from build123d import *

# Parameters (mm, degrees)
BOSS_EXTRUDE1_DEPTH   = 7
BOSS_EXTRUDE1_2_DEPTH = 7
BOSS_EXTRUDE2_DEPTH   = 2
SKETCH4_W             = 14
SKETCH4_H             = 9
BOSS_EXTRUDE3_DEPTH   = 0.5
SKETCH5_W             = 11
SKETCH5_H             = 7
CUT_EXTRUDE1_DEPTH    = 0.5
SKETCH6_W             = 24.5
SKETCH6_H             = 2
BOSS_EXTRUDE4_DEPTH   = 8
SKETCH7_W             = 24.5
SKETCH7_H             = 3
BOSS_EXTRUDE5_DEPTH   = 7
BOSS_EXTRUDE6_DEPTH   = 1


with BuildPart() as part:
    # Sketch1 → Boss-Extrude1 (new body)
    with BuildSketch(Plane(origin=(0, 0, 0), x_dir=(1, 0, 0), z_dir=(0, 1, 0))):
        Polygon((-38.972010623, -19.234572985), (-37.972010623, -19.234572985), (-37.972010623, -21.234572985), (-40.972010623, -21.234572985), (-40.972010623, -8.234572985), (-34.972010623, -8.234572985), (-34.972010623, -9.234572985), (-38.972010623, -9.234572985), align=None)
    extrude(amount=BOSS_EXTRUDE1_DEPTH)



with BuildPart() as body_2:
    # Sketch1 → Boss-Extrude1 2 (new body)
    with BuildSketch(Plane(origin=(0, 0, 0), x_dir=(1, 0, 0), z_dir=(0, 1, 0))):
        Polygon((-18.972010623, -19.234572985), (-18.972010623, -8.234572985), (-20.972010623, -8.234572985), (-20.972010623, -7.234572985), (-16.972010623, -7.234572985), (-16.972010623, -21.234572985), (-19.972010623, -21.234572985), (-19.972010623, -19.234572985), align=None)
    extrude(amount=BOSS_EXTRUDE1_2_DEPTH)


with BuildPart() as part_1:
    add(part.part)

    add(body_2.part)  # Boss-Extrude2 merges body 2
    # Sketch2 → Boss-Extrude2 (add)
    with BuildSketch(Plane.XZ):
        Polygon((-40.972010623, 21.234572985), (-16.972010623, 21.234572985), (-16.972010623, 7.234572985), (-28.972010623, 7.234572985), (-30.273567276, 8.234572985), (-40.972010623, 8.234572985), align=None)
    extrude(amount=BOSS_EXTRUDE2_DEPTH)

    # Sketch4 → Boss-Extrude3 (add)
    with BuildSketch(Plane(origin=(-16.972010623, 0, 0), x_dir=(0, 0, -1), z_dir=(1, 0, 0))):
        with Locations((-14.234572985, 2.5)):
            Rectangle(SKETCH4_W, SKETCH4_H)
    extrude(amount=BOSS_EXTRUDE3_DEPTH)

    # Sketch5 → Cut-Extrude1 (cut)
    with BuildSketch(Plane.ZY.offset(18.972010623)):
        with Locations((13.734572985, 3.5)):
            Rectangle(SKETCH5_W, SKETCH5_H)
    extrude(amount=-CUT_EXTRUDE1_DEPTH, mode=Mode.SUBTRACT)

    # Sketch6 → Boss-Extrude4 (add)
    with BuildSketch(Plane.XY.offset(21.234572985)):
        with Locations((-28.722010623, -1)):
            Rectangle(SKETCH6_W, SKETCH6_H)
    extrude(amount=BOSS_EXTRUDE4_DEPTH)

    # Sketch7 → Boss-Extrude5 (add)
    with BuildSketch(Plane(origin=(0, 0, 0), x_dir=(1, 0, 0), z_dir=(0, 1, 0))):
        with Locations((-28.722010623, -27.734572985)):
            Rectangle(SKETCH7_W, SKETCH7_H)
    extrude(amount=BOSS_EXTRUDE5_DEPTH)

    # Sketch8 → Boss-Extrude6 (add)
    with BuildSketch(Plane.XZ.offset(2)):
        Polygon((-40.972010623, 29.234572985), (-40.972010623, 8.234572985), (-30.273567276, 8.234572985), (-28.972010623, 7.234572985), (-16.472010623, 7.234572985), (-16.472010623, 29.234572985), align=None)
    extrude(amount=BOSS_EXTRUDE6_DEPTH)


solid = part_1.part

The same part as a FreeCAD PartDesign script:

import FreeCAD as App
import Part
import Sketcher

V = App.Vector

doc = App.newDocument("Part")
body = doc.addObject("PartDesign::Body", "Body")

sketch1 = body.newObject("Sketcher::SketchObject", "Sketch")
sketch1.AttachmentSupport = (doc.getObject("XZ_Plane"), [""])
sketch1.MapMode = "FlatFace"
sketch1.addGeometry([
    Part.LineSegment(V(-38, 19.2, 0), V(-39, 19.2, 0)),
    Part.LineSegment(V(-39, 19.2, 0), V(-39, 9.2, 0)),
    Part.LineSegment(V(-39, 9.2, 0), V(-35, 9.2, 0)),
    Part.LineSegment(V(-35, 9.2, 0), V(-35, 8.2, 0)),
    Part.LineSegment(V(-35, 8.2, 0), V(-41, 8.2, 0)),
    Part.LineSegment(V(-41, 8.2, 0), V(-41, 21.2, 0)),
    Part.LineSegment(V(-41, 21.2, 0), V(-38, 21.2, 0)),
    Part.LineSegment(V(-38, 21.2, 0), V(-38, 19.2, 0)),
], False)
sketch1.addConstraint([
    Sketcher.Constraint("Coincident", 0, 2, 1, 1),
    Sketcher.Constraint("Coincident", 1, 2, 2, 1),
    Sketcher.Constraint("Coincident", 2, 2, 3, 1),
    Sketcher.Constraint("Coincident", 3, 2, 4, 1),
    Sketcher.Constraint("Coincident", 4, 2, 5, 1),
    Sketcher.Constraint("Coincident", 5, 2, 6, 1),
    Sketcher.Constraint("Coincident", 6, 2, 7, 1),
    Sketcher.Constraint("Coincident", 7, 2, 0, 1),
    Sketcher.Constraint("Horizontal", 0),
    Sketcher.Constraint("Vertical", 1),
    Sketcher.Constraint("Horizontal", 2),
    Sketcher.Constraint("Vertical", 3),
    Sketcher.Constraint("Horizontal", 4),
    Sketcher.Constraint("Vertical", 5),
    Sketcher.Constraint("Horizontal", 6),
    Sketcher.Constraint("Vertical", 7),
    Sketcher.Constraint("Equal", 0, 3),
    Sketcher.Constraint("DistanceX", 0, 2, 0, 1, 1.0),
    Sketcher.Constraint("DistanceX", 2, 1, 2, 2, 4.0),
    Sketcher.Constraint("DistanceX", 4, 2, 4, 1, 6.0),
    Sketcher.Constraint("DistanceY", 1, 2, 1, 1, 10.0),
    Sketcher.Constraint("DistanceY", 5, 1, 5, 2, 13.0),
    Sketcher.Constraint("DistanceX", 0, 2, -1, 1, 38.972011),
    Sketcher.Constraint("DistanceY", -1, 1, 0, 2, 19.234573),
])
pad1 = body.newObject("PartDesign::Pad", "Pad")
pad1.Profile = sketch1
pad1.Length = 7
pad1.Reversed = True
body2 = doc.addObject("PartDesign::Body", "Body001")

sketch2 = body2.newObject("Sketcher::SketchObject", "Sketch001")
sketch2.AttachmentSupport = (doc.getObject("XZ_Plane001"), [""])
sketch2.MapMode = "FlatFace"
sketch2.addGeometry([
    Part.LineSegment(V(-19, 8.2, 0), V(-19, 19.2, 0)),
    Part.LineSegment(V(-19, 19.2, 0), V(-20, 19.2, 0)),
    Part.LineSegment(V(-20, 19.2, 0), V(-20, 21.2, 0)),
    Part.LineSegment(V(-20, 21.2, 0), V(-17, 21.2, 0)),
    Part.LineSegment(V(-17, 21.2, 0), V(-17, 7.2, 0)),
    Part.LineSegment(V(-17, 7.2, 0), V(-21, 7.2, 0)),
    Part.LineSegment(V(-21, 7.2, 0), V(-21, 8.2, 0)),
    Part.LineSegment(V(-21, 8.2, 0), V(-19, 8.2, 0)),
], False)
sketch2.addConstraint([
    Sketcher.Constraint("Coincident", 0, 2, 1, 1),
    Sketcher.Constraint("Coincident", 1, 2, 2, 1),
    Sketcher.Constraint("Coincident", 2, 2, 3, 1),
    Sketcher.Constraint("Coincident", 3, 2, 4, 1),
    Sketcher.Constraint("Coincident", 4, 2, 5, 1),
    Sketcher.Constraint("Coincident", 5, 2, 6, 1),
    Sketcher.Constraint("Coincident", 6, 2, 7, 1),
    Sketcher.Constraint("Coincident", 7, 2, 0, 1),
    Sketcher.Constraint("Vertical", 0),
    Sketcher.Constraint("Horizontal", 1),
    Sketcher.Constraint("Vertical", 2),
    Sketcher.Constraint("Horizontal", 3),
    Sketcher.Constraint("Vertical", 4),
    Sketcher.Constraint("Horizontal", 5),
    Sketcher.Constraint("Vertical", 6),
    Sketcher.Constraint("Horizontal", 7),
    Sketcher.Constraint("Equal", 7, 2),
    Sketcher.Constraint("Equal", 1, 6),
    Sketcher.Constraint("DistanceX", 1, 2, 1, 1, 1.0),
    Sketcher.Constraint("DistanceX", 3, 1, 3, 2, 3.0),
    Sketcher.Constraint("DistanceX", 5, 2, 5, 1, 4.0),
    Sketcher.Constraint("DistanceY", 0, 1, 0, 2, 11.0),
    Sketcher.Constraint("DistanceX", 0, 2, -1, 1, 18.972011),
    Sketcher.Constraint("DistanceY", -1, 1, 0, 2, 19.234573),
])
pad2 = body2.newObject("PartDesign::Pad", "Pad001")
pad2.Profile = sketch2
pad2.Length = 7
pad2.Reversed = True
body.AllowCompound = True
doc.recompute()

boolean = body.newObject("PartDesign::Boolean", "Boolean")
boolean.Type = "Fuse"
boolean.addObjects([body2])

sketch3 = body.newObject("Sketcher::SketchObject", "Sketch002")
sketch3.AttachmentSupport = (doc.getObject("XZ_Plane"), [""])
sketch3.MapMode = "FlatFace"
sketch3.addGeometry([
    Part.LineSegment(V(-17, 21.2, 0), V(-41, 21.2, 0)),
    Part.LineSegment(V(-41, 21.2, 0), V(-41, 8.2, 0)),
    Part.LineSegment(V(-41, 8.2, 0), V(-30.3, 8.2, 0)),
    Part.LineSegment(V(-30.3, 8.2, 0), V(-29, 7.2, 0)),
    Part.LineSegment(V(-29, 7.2, 0), V(-17, 7.2, 0)),
    Part.LineSegment(V(-17, 7.2, 0), V(-17, 21.2, 0)),
], False)
sketch3.addConstraint([
    Sketcher.Constraint("Coincident", 0, 2, 1, 1),
    Sketcher.Constraint("Coincident", 1, 2, 2, 1),
    Sketcher.Constraint("Coincident", 2, 2, 3, 1),
    Sketcher.Constraint("Coincident", 3, 2, 4, 1),
    Sketcher.Constraint("Coincident", 4, 2, 5, 1),
    Sketcher.Constraint("Coincident", 5, 2, 0, 1),
    Sketcher.Constraint("Horizontal", 0),
    Sketcher.Constraint("Vertical", 1),
    Sketcher.Constraint("Horizontal", 2),
    Sketcher.Constraint("Horizontal", 4),
    Sketcher.Constraint("Vertical", 5),
    Sketcher.Constraint("DistanceX", 0, 2, 0, 1, 24.0),
    Sketcher.Constraint("DistanceX", 4, 1, 4, 2, 12.0),
    Sketcher.Constraint("DistanceY", 1, 2, 1, 1, 13.0),
    Sketcher.Constraint("DistanceY", 5, 1, 5, 2, 14.0),
    Sketcher.Constraint("DistanceX", 2, 1, 2, 2, 10.698443),
    Sketcher.Constraint("DistanceX", 0, 2, -1, 1, 40.972011),
    Sketcher.Constraint("DistanceY", -1, 1, 0, 2, 21.234573),
])
pad3 = body.newObject("PartDesign::Pad", "Pad002")
pad3.Profile = sketch3
pad3.Length = 2

sketch4 = body.newObject("Sketcher::SketchObject", "Sketch003")
sketch4.AttachmentSupport = (doc.getObject("YZ_Plane"), [""])
sketch4.MapMode = "FlatFace"
sketch4.AttachmentOffset = App.Placement(V(0, 0, -16.972011), App.Rotation())
sketch4.addGeometry([
    Part.LineSegment(V(7, 21, 0), V(-2, 21, 0)),
    Part.LineSegment(V(-2, 21, 0), V(-2, 7, 0)),
    Part.LineSegment(V(-2, 7, 0), V(7, 7, 0)),
    Part.LineSegment(V(7, 7, 0), V(7, 21, 0)),
], False)
sketch4.addConstraint([
    Sketcher.Constraint("Coincident", 0, 2, 1, 1),
    Sketcher.Constraint("Coincident", 1, 2, 2, 1),
    Sketcher.Constraint("Coincident", 2, 2, 3, 1),
    Sketcher.Constraint("Coincident", 3, 2, 0, 1),
    Sketcher.Constraint("Horizontal", 0),
    Sketcher.Constraint("Vertical", 1),
    Sketcher.Constraint("Horizontal", 2),
    Sketcher.Constraint("Vertical", 3),
    Sketcher.Constraint("DistanceX", 0, 2, 0, 1, 9.0),
    Sketcher.Constraint("DistanceY", 1, 2, 1, 1, 14.0),
    Sketcher.Constraint("DistanceX", 0, 2, -1, 1, 2.0),
    Sketcher.Constraint("DistanceY", -1, 1, 0, 2, 21.234573),
])
pad4 = body.newObject("PartDesign::Pad", "Pad003")
pad4.Profile = sketch4
pad4.Length = 0.5

sketch5 = body.newObject("Sketcher::SketchObject", "Sketch004")
sketch5.AttachmentSupport = (doc.getObject("YZ_Plane"), [""])
sketch5.MapMode = "FlatFace"
sketch5.AttachmentOffset = App.Placement(V(0, 0, -18.972011), App.Rotation())
sketch5.addGeometry([
    Part.LineSegment(V(7, 8, 0), V(0, 8, 0)),
    Part.LineSegment(V(0, 8, 0), V(0, 19, 0)),
    Part.LineSegment(V(0, 19, 0), V(7, 19, 0)),
    Part.LineSegment(V(7, 19, 0), V(7, 8, 0)),
], False)
sketch5.addConstraint([
    Sketcher.Constraint("Coincident", 0, 2, 1, 1),
    Sketcher.Constraint("Coincident", 1, 2, 2, 1),
    Sketcher.Constraint("Coincident", 2, 2, 3, 1),
    Sketcher.Constraint("Coincident", 3, 2, 0, 1),
    Sketcher.Constraint("Horizontal", 0),
    Sketcher.Constraint("Vertical", 1),
    Sketcher.Constraint("Horizontal", 2),
    Sketcher.Constraint("Vertical", 3),
    Sketcher.Constraint("PointOnObject", 0, 2, -2),
    Sketcher.Constraint("DistanceX", 0, 2, 0, 1, 7.0),
    Sketcher.Constraint("DistanceY", 1, 1, 1, 2, 11.0),
    Sketcher.Constraint("DistanceY", -1, 1, 0, 2, 8.234573),
])
pocket1 = body.newObject("PartDesign::Pocket", "Pocket")
pocket1.Profile = sketch5
pocket1.Length = 0.5
pocket1.Reversed = True

sketch6 = body.newObject("Sketcher::SketchObject", "Sketch005")
sketch6.AttachmentSupport = (doc.getObject("XY_Plane"), [""])
sketch6.MapMode = "FlatFace"
sketch6.AttachmentOffset = App.Placement(V(0, 0, 21.234573), App.Rotation())
sketch6.addGeometry([
    Part.LineSegment(V(-41, 0, 0), V(-41, -2, 0)),
    Part.LineSegment(V(-41, -2, 0), V(-16.5, -2, 0)),
    Part.LineSegment(V(-16.5, -2, 0), V(-16.5, 0, 0)),
    Part.LineSegment(V(-16.5, 0, 0), V(-41, 0, 0)),
], False)
sketch6.addConstraint([
    Sketcher.Constraint("Coincident", 0, 2, 1, 1),
    Sketcher.Constraint("Coincident", 1, 2, 2, 1),
    Sketcher.Constraint("Coincident", 2, 2, 3, 1),
    Sketcher.Constraint("Coincident", 3, 2, 0, 1),
    Sketcher.Constraint("Vertical", 0),
    Sketcher.Constraint("Horizontal", 1),
    Sketcher.Constraint("Vertical", 2),
    Sketcher.Constraint("Horizontal", 3),
    Sketcher.Constraint("PointOnObject", 2, 2, -1),
    Sketcher.Constraint("DistanceY", 0, 2, 0, 1, 2.0),
    Sketcher.Constraint("DistanceX", 1, 1, 1, 2, 24.5),
    Sketcher.Constraint("DistanceX", 0, 2, -1, 1, 40.972011),
])
pad5 = body.newObject("PartDesign::Pad", "Pad004")
pad5.Profile = sketch6
pad5.Length = 8

sketch7 = body.newObject("Sketcher::SketchObject", "Sketch006")
sketch7.AttachmentSupport = (doc.getObject("XZ_Plane"), [""])
sketch7.MapMode = "FlatFace"
sketch7.addGeometry([
    Part.LineSegment(V(-41, 26.2, 0), V(-41, 29.2, 0)),
    Part.LineSegment(V(-41, 29.2, 0), V(-16.5, 29.2, 0)),
    Part.LineSegment(V(-16.5, 29.2, 0), V(-16.5, 26.2, 0)),
    Part.LineSegment(V(-16.5, 26.2, 0), V(-41, 26.2, 0)),
], False)
sketch7.addConstraint([
    Sketcher.Constraint("Coincident", 0, 2, 1, 1),
    Sketcher.Constraint("Coincident", 1, 2, 2, 1),
    Sketcher.Constraint("Coincident", 2, 2, 3, 1),
    Sketcher.Constraint("Coincident", 3, 2, 0, 1),
    Sketcher.Constraint("Vertical", 0),
    Sketcher.Constraint("Horizontal", 1),
    Sketcher.Constraint("Vertical", 2),
    Sketcher.Constraint("Horizontal", 3),
    Sketcher.Constraint("DistanceY", 0, 1, 0, 2, 3.0),
    Sketcher.Constraint("DistanceX", 1, 1, 1, 2, 24.5),
    Sketcher.Constraint("DistanceX", 0, 2, -1, 1, 40.972011),
    Sketcher.Constraint("DistanceY", -1, 1, 0, 2, 29.234573),
])
pad6 = body.newObject("PartDesign::Pad", "Pad005")
pad6.Profile = sketch7
pad6.Length = 7
pad6.Reversed = True

sketch8 = body.newObject("Sketcher::SketchObject", "Sketch007")
sketch8.AttachmentSupport = (doc.getObject("XZ_Plane"), [""])
sketch8.MapMode = "FlatFace"
sketch8.AttachmentOffset = App.Placement(V(0, 0, 2), App.Rotation())
sketch8.addGeometry([
    Part.LineSegment(V(-41, 29.2, 0), V(-41, 8.2, 0)),
    Part.LineSegment(V(-41, 8.2, 0), V(-30.3, 8.2, 0)),
    Part.LineSegment(V(-30.3, 8.2, 0), V(-29, 7.2, 0)),
    Part.LineSegment(V(-29, 7.2, 0), V(-16.5, 7.2, 0)),
    Part.LineSegment(V(-16.5, 7.2, 0), V(-16.5, 29.2, 0)),
    Part.LineSegment(V(-16.5, 29.2, 0), V(-41, 29.2, 0)),
], False)
sketch8.addConstraint([
    Sketcher.Constraint("Coincident", 0, 2, 1, 1),
    Sketcher.Constraint("Coincident", 1, 2, 2, 1),
    Sketcher.Constraint("Coincident", 2, 2, 3, 1),
    Sketcher.Constraint("Coincident", 3, 2, 4, 1),
    Sketcher.Constraint("Coincident", 4, 2, 5, 1),
    Sketcher.Constraint("Coincident", 5, 2, 0, 1),
    Sketcher.Constraint("Vertical", 0),
    Sketcher.Constraint("Horizontal", 1),
    Sketcher.Constraint("Horizontal", 3),
    Sketcher.Constraint("Vertical", 4),
    Sketcher.Constraint("Horizontal", 5),
    Sketcher.Constraint("DistanceY", 0, 2, 0, 1, 21.0),
    Sketcher.Constraint("DistanceY", 4, 1, 4, 2, 22.0),
    Sketcher.Constraint("DistanceX", 3, 1, 3, 2, 12.5),
    Sketcher.Constraint("DistanceX", 5, 2, 5, 1, 24.5),
    Sketcher.Constraint("DistanceX", 1, 1, 1, 2, 10.698443),
    Sketcher.Constraint("DistanceX", 0, 2, -1, 1, 40.972011),
    Sketcher.Constraint("DistanceY", -1, 1, 0, 2, 8.234573),
])
pad7 = body.newObject("PartDesign::Pad", "Pad006")
pad7.Profile = sketch8
pad7.Length = 1

doc.recompute()
